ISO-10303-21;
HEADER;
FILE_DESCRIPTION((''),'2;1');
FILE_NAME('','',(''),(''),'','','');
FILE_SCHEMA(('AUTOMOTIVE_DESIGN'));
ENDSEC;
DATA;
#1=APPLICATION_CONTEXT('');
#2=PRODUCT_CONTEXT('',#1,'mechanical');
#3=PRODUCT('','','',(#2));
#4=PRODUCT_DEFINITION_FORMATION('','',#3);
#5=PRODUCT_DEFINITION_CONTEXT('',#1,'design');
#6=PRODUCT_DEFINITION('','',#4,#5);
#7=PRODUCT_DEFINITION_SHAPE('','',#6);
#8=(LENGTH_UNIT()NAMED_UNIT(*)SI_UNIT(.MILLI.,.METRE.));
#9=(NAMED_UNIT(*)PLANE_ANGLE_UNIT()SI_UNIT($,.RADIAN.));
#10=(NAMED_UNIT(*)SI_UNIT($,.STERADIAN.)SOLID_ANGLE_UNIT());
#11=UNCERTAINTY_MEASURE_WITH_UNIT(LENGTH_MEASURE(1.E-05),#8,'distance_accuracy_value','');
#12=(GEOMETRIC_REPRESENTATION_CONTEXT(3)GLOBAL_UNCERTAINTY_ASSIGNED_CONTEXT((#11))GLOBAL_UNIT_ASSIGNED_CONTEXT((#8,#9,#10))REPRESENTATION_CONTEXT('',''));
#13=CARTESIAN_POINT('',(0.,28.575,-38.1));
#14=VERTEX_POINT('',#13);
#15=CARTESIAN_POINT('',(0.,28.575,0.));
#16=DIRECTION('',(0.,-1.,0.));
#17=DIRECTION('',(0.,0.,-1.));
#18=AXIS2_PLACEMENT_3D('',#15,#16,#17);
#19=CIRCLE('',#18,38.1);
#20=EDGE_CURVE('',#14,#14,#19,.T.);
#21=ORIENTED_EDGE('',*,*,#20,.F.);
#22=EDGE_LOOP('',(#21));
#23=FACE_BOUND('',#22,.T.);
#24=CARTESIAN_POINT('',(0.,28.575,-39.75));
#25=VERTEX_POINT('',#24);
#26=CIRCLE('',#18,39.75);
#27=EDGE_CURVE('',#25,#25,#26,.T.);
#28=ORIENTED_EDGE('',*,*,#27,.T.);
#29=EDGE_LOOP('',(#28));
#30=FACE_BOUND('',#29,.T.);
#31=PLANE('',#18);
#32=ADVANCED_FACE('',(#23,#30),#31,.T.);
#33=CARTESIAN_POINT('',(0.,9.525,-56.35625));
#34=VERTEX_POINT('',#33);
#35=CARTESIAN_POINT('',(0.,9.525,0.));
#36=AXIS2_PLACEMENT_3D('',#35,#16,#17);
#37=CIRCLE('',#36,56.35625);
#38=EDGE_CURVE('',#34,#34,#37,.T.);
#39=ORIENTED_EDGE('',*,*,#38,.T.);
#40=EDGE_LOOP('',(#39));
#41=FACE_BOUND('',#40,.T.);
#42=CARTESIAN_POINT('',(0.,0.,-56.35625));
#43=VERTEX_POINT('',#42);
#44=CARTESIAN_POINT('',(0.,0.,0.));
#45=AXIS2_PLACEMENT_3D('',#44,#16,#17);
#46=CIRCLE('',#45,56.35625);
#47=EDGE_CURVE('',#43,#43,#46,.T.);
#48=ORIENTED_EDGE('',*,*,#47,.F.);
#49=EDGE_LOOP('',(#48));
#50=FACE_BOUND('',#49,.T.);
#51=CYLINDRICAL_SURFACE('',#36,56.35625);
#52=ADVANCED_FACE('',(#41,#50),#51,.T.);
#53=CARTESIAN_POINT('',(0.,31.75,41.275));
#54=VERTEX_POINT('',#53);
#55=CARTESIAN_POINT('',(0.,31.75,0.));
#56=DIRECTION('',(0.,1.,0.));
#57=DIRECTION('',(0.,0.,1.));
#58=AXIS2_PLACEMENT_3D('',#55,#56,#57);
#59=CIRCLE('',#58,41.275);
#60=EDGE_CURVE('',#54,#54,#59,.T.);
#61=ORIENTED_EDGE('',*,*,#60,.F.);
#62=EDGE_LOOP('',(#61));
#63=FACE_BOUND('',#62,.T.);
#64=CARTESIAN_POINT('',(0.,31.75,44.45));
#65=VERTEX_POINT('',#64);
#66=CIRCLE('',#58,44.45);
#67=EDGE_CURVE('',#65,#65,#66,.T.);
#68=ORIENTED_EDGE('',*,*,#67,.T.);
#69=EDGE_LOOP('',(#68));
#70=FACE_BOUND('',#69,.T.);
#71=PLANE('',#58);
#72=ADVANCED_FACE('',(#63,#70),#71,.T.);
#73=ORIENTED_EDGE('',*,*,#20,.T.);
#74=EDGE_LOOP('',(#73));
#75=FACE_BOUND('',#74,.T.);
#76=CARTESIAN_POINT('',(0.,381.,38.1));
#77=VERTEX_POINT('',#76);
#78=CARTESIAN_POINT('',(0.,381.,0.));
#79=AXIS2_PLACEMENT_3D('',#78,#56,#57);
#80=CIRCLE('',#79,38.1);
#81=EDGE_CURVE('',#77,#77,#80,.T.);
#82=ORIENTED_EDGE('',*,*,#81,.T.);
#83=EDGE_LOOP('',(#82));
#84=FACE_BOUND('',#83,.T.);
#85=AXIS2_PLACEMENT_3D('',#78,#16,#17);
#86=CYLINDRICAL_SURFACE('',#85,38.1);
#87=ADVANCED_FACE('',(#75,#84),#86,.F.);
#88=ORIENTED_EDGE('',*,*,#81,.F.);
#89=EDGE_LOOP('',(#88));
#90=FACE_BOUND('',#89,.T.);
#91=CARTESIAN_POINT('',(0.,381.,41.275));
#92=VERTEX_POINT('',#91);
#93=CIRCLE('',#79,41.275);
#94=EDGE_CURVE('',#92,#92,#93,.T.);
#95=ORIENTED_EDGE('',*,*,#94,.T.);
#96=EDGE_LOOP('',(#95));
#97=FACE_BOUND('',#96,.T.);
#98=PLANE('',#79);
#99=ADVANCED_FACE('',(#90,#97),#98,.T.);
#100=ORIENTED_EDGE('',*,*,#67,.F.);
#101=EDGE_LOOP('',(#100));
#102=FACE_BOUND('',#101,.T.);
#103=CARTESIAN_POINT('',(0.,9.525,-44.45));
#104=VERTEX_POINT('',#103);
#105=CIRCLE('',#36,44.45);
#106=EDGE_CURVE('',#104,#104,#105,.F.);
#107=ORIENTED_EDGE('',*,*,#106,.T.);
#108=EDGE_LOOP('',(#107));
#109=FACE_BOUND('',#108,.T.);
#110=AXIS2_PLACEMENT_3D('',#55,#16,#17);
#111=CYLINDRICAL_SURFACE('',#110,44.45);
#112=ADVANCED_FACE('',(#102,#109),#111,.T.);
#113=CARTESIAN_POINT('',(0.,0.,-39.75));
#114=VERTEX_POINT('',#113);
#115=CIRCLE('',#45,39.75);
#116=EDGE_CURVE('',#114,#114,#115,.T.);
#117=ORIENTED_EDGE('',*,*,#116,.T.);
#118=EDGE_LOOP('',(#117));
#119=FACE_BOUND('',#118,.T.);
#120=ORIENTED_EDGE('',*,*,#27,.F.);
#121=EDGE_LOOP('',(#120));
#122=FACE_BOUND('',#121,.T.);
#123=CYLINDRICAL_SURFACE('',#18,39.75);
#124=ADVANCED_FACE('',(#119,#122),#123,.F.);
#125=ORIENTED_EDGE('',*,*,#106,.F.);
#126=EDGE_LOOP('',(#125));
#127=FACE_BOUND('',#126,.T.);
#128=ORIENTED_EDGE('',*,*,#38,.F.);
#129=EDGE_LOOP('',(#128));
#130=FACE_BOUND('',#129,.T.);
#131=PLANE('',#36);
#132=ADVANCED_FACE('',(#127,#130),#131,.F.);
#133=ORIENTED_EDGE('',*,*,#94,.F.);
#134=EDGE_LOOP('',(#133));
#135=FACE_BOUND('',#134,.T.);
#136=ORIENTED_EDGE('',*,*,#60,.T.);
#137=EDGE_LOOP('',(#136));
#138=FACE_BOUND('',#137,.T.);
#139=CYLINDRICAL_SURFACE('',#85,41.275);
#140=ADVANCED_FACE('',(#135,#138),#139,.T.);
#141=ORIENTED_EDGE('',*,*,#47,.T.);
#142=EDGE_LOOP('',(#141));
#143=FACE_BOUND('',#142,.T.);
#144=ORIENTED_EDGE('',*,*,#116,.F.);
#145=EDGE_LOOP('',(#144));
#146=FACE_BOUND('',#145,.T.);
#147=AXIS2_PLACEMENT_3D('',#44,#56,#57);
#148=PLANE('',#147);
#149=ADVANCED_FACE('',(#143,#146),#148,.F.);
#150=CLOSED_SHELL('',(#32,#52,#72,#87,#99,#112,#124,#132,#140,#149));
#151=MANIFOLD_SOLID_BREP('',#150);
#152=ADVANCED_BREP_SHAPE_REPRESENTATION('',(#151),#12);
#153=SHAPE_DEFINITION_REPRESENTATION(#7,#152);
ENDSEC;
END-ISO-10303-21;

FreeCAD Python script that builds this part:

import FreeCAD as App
import Part
import Sketcher
Q = App.Units.Quantity

doc = App.newDocument("Part")
body = doc.addObject("PartDesign::Body", "Body")

# Sketch on XZ plane
sketch1 = doc.addObject("Sketcher::SketchObject", "Sketch")
body.addObject(sketch1)
sketch1.AttachmentSupport = (doc.XZ_Plane, [""])
sketch1.MapMode = "FlatFace"
sketch1.addGeometry(Part.Circle(App.Vector(0, 0, 0), App.Vector(0, 0, 1), 41), False)
sketch1.addGeometry(Part.Circle(App.Vector(0, 0, 0), App.Vector(0, 0, 1), 38), False)
sketch1.addConstraint(Sketcher.Constraint("Coincident", 0, 3, -1, 1))
sketch1.addConstraint(Sketcher.Constraint("Coincident", 1, 3, -1, 1))
sketch1.addConstraint(Sketcher.Constraint("Diameter", 1, Q("3 in")))
sketch1.addConstraint(Sketcher.Constraint("Diameter", 0, Q("3.25 in")))
pad1 = doc.addObject("PartDesign::Pad", "Pad")
body.addObject(pad1)
pad1.Profile = sketch1
pad1.Length = Q("15 in")
pad1.Reversed = True

# Sketch on XZ plane
sketch2 = doc.addObject("Sketcher::SketchObject", "Sketch001")
body.addObject(sketch2)
sketch2.AttachmentSupport = (doc.XZ_Plane, [""])
sketch2.MapMode = "FlatFace"
sketch2.addGeometry(Part.Circle(App.Vector(0, 0, 0), App.Vector(0, 0, 1), 56), False)
sketch2.addGeometry(Part.Circle(App.Vector(0, 0, 0), App.Vector(0, 0, 1), 38), False)
sketch2.addConstraint(Sketcher.Constraint("Coincident", 0, 3, -1, 1))
sketch2.addConstraint(Sketcher.Constraint("Coincident", 1, 3, -1, 1))
sketch2.addConstraint(Sketcher.Constraint("Diameter", 1, Q("3 in")))
sketch2.addConstraint(Sketcher.Constraint("Diameter", 0, Q("4.4375 in")))
pad2 = doc.addObject("PartDesign::Pad", "Pad001")
body.addObject(pad2)
pad2.Profile = sketch2
pad2.Length = Q("0.375 in")
pad2.Reversed = True

# Sketch on XZ plane
sketch3 = doc.addObject("Sketcher::SketchObject", "Sketch002")
body.addObject(sketch3)
sketch3.AttachmentSupport = (doc.XZ_Plane, [""])
sketch3.MapMode = "FlatFace"
sketch3.addGeometry(Part.Circle(App.Vector(0, 0, 0), App.Vector(0, 0, 1), 40), False)
sketch3.addConstraint(Sketcher.Constraint("Coincident", 0, 3, -1, 1))
sketch3.addConstraint(Sketcher.Constraint("Diameter", 0, Q("79.5 mm")))
pocket1 = doc.addObject("PartDesign::Pocket", "Pocket")
body.addObject(pocket1)
pocket1.Profile = sketch3
pocket1.Length = Q("1.125 in")

# Sketch on XZ plane
sketch4 = doc.addObject("Sketcher::SketchObject", "Sketch003")
body.addObject(sketch4)
sketch4.AttachmentSupport = (doc.XZ_Plane, [""])
sketch4.MapMode = "FlatFace"
sketch4.AttachmentOffset = App.Placement(App.Vector(0, 0, -0.375 * 25.4), App.Rotation())
sketch4.addGeometry(Part.Circle(App.Vector(0, 0, 0), App.Vector(0, 0, 1), 44), False)
sketch4.addGeometry(Part.Circle(App.Vector(0, 0, 0), App.Vector(0, 0, 1), 41), False)
sketch4.addConstraint(Sketcher.Constraint("Coincident", 0, 3, -1, 1))
sketch4.addConstraint(Sketcher.Constraint("Coincident", 1, 3, -1, 1))
sketch4.addConstraint(Sketcher.Constraint("Diameter", 0, Q("3.5 in")))
sketch4.addConstraint(Sketcher.Constraint("Diameter", 1, Q("3.25 in")))
pad3 = doc.addObject("PartDesign::Pad", "Pad002")
body.addObject(pad3)
pad3.Profile = sketch4
pad3.Length = Q("0.875 in")
pad3.Reversed = True

doc.recompute()
